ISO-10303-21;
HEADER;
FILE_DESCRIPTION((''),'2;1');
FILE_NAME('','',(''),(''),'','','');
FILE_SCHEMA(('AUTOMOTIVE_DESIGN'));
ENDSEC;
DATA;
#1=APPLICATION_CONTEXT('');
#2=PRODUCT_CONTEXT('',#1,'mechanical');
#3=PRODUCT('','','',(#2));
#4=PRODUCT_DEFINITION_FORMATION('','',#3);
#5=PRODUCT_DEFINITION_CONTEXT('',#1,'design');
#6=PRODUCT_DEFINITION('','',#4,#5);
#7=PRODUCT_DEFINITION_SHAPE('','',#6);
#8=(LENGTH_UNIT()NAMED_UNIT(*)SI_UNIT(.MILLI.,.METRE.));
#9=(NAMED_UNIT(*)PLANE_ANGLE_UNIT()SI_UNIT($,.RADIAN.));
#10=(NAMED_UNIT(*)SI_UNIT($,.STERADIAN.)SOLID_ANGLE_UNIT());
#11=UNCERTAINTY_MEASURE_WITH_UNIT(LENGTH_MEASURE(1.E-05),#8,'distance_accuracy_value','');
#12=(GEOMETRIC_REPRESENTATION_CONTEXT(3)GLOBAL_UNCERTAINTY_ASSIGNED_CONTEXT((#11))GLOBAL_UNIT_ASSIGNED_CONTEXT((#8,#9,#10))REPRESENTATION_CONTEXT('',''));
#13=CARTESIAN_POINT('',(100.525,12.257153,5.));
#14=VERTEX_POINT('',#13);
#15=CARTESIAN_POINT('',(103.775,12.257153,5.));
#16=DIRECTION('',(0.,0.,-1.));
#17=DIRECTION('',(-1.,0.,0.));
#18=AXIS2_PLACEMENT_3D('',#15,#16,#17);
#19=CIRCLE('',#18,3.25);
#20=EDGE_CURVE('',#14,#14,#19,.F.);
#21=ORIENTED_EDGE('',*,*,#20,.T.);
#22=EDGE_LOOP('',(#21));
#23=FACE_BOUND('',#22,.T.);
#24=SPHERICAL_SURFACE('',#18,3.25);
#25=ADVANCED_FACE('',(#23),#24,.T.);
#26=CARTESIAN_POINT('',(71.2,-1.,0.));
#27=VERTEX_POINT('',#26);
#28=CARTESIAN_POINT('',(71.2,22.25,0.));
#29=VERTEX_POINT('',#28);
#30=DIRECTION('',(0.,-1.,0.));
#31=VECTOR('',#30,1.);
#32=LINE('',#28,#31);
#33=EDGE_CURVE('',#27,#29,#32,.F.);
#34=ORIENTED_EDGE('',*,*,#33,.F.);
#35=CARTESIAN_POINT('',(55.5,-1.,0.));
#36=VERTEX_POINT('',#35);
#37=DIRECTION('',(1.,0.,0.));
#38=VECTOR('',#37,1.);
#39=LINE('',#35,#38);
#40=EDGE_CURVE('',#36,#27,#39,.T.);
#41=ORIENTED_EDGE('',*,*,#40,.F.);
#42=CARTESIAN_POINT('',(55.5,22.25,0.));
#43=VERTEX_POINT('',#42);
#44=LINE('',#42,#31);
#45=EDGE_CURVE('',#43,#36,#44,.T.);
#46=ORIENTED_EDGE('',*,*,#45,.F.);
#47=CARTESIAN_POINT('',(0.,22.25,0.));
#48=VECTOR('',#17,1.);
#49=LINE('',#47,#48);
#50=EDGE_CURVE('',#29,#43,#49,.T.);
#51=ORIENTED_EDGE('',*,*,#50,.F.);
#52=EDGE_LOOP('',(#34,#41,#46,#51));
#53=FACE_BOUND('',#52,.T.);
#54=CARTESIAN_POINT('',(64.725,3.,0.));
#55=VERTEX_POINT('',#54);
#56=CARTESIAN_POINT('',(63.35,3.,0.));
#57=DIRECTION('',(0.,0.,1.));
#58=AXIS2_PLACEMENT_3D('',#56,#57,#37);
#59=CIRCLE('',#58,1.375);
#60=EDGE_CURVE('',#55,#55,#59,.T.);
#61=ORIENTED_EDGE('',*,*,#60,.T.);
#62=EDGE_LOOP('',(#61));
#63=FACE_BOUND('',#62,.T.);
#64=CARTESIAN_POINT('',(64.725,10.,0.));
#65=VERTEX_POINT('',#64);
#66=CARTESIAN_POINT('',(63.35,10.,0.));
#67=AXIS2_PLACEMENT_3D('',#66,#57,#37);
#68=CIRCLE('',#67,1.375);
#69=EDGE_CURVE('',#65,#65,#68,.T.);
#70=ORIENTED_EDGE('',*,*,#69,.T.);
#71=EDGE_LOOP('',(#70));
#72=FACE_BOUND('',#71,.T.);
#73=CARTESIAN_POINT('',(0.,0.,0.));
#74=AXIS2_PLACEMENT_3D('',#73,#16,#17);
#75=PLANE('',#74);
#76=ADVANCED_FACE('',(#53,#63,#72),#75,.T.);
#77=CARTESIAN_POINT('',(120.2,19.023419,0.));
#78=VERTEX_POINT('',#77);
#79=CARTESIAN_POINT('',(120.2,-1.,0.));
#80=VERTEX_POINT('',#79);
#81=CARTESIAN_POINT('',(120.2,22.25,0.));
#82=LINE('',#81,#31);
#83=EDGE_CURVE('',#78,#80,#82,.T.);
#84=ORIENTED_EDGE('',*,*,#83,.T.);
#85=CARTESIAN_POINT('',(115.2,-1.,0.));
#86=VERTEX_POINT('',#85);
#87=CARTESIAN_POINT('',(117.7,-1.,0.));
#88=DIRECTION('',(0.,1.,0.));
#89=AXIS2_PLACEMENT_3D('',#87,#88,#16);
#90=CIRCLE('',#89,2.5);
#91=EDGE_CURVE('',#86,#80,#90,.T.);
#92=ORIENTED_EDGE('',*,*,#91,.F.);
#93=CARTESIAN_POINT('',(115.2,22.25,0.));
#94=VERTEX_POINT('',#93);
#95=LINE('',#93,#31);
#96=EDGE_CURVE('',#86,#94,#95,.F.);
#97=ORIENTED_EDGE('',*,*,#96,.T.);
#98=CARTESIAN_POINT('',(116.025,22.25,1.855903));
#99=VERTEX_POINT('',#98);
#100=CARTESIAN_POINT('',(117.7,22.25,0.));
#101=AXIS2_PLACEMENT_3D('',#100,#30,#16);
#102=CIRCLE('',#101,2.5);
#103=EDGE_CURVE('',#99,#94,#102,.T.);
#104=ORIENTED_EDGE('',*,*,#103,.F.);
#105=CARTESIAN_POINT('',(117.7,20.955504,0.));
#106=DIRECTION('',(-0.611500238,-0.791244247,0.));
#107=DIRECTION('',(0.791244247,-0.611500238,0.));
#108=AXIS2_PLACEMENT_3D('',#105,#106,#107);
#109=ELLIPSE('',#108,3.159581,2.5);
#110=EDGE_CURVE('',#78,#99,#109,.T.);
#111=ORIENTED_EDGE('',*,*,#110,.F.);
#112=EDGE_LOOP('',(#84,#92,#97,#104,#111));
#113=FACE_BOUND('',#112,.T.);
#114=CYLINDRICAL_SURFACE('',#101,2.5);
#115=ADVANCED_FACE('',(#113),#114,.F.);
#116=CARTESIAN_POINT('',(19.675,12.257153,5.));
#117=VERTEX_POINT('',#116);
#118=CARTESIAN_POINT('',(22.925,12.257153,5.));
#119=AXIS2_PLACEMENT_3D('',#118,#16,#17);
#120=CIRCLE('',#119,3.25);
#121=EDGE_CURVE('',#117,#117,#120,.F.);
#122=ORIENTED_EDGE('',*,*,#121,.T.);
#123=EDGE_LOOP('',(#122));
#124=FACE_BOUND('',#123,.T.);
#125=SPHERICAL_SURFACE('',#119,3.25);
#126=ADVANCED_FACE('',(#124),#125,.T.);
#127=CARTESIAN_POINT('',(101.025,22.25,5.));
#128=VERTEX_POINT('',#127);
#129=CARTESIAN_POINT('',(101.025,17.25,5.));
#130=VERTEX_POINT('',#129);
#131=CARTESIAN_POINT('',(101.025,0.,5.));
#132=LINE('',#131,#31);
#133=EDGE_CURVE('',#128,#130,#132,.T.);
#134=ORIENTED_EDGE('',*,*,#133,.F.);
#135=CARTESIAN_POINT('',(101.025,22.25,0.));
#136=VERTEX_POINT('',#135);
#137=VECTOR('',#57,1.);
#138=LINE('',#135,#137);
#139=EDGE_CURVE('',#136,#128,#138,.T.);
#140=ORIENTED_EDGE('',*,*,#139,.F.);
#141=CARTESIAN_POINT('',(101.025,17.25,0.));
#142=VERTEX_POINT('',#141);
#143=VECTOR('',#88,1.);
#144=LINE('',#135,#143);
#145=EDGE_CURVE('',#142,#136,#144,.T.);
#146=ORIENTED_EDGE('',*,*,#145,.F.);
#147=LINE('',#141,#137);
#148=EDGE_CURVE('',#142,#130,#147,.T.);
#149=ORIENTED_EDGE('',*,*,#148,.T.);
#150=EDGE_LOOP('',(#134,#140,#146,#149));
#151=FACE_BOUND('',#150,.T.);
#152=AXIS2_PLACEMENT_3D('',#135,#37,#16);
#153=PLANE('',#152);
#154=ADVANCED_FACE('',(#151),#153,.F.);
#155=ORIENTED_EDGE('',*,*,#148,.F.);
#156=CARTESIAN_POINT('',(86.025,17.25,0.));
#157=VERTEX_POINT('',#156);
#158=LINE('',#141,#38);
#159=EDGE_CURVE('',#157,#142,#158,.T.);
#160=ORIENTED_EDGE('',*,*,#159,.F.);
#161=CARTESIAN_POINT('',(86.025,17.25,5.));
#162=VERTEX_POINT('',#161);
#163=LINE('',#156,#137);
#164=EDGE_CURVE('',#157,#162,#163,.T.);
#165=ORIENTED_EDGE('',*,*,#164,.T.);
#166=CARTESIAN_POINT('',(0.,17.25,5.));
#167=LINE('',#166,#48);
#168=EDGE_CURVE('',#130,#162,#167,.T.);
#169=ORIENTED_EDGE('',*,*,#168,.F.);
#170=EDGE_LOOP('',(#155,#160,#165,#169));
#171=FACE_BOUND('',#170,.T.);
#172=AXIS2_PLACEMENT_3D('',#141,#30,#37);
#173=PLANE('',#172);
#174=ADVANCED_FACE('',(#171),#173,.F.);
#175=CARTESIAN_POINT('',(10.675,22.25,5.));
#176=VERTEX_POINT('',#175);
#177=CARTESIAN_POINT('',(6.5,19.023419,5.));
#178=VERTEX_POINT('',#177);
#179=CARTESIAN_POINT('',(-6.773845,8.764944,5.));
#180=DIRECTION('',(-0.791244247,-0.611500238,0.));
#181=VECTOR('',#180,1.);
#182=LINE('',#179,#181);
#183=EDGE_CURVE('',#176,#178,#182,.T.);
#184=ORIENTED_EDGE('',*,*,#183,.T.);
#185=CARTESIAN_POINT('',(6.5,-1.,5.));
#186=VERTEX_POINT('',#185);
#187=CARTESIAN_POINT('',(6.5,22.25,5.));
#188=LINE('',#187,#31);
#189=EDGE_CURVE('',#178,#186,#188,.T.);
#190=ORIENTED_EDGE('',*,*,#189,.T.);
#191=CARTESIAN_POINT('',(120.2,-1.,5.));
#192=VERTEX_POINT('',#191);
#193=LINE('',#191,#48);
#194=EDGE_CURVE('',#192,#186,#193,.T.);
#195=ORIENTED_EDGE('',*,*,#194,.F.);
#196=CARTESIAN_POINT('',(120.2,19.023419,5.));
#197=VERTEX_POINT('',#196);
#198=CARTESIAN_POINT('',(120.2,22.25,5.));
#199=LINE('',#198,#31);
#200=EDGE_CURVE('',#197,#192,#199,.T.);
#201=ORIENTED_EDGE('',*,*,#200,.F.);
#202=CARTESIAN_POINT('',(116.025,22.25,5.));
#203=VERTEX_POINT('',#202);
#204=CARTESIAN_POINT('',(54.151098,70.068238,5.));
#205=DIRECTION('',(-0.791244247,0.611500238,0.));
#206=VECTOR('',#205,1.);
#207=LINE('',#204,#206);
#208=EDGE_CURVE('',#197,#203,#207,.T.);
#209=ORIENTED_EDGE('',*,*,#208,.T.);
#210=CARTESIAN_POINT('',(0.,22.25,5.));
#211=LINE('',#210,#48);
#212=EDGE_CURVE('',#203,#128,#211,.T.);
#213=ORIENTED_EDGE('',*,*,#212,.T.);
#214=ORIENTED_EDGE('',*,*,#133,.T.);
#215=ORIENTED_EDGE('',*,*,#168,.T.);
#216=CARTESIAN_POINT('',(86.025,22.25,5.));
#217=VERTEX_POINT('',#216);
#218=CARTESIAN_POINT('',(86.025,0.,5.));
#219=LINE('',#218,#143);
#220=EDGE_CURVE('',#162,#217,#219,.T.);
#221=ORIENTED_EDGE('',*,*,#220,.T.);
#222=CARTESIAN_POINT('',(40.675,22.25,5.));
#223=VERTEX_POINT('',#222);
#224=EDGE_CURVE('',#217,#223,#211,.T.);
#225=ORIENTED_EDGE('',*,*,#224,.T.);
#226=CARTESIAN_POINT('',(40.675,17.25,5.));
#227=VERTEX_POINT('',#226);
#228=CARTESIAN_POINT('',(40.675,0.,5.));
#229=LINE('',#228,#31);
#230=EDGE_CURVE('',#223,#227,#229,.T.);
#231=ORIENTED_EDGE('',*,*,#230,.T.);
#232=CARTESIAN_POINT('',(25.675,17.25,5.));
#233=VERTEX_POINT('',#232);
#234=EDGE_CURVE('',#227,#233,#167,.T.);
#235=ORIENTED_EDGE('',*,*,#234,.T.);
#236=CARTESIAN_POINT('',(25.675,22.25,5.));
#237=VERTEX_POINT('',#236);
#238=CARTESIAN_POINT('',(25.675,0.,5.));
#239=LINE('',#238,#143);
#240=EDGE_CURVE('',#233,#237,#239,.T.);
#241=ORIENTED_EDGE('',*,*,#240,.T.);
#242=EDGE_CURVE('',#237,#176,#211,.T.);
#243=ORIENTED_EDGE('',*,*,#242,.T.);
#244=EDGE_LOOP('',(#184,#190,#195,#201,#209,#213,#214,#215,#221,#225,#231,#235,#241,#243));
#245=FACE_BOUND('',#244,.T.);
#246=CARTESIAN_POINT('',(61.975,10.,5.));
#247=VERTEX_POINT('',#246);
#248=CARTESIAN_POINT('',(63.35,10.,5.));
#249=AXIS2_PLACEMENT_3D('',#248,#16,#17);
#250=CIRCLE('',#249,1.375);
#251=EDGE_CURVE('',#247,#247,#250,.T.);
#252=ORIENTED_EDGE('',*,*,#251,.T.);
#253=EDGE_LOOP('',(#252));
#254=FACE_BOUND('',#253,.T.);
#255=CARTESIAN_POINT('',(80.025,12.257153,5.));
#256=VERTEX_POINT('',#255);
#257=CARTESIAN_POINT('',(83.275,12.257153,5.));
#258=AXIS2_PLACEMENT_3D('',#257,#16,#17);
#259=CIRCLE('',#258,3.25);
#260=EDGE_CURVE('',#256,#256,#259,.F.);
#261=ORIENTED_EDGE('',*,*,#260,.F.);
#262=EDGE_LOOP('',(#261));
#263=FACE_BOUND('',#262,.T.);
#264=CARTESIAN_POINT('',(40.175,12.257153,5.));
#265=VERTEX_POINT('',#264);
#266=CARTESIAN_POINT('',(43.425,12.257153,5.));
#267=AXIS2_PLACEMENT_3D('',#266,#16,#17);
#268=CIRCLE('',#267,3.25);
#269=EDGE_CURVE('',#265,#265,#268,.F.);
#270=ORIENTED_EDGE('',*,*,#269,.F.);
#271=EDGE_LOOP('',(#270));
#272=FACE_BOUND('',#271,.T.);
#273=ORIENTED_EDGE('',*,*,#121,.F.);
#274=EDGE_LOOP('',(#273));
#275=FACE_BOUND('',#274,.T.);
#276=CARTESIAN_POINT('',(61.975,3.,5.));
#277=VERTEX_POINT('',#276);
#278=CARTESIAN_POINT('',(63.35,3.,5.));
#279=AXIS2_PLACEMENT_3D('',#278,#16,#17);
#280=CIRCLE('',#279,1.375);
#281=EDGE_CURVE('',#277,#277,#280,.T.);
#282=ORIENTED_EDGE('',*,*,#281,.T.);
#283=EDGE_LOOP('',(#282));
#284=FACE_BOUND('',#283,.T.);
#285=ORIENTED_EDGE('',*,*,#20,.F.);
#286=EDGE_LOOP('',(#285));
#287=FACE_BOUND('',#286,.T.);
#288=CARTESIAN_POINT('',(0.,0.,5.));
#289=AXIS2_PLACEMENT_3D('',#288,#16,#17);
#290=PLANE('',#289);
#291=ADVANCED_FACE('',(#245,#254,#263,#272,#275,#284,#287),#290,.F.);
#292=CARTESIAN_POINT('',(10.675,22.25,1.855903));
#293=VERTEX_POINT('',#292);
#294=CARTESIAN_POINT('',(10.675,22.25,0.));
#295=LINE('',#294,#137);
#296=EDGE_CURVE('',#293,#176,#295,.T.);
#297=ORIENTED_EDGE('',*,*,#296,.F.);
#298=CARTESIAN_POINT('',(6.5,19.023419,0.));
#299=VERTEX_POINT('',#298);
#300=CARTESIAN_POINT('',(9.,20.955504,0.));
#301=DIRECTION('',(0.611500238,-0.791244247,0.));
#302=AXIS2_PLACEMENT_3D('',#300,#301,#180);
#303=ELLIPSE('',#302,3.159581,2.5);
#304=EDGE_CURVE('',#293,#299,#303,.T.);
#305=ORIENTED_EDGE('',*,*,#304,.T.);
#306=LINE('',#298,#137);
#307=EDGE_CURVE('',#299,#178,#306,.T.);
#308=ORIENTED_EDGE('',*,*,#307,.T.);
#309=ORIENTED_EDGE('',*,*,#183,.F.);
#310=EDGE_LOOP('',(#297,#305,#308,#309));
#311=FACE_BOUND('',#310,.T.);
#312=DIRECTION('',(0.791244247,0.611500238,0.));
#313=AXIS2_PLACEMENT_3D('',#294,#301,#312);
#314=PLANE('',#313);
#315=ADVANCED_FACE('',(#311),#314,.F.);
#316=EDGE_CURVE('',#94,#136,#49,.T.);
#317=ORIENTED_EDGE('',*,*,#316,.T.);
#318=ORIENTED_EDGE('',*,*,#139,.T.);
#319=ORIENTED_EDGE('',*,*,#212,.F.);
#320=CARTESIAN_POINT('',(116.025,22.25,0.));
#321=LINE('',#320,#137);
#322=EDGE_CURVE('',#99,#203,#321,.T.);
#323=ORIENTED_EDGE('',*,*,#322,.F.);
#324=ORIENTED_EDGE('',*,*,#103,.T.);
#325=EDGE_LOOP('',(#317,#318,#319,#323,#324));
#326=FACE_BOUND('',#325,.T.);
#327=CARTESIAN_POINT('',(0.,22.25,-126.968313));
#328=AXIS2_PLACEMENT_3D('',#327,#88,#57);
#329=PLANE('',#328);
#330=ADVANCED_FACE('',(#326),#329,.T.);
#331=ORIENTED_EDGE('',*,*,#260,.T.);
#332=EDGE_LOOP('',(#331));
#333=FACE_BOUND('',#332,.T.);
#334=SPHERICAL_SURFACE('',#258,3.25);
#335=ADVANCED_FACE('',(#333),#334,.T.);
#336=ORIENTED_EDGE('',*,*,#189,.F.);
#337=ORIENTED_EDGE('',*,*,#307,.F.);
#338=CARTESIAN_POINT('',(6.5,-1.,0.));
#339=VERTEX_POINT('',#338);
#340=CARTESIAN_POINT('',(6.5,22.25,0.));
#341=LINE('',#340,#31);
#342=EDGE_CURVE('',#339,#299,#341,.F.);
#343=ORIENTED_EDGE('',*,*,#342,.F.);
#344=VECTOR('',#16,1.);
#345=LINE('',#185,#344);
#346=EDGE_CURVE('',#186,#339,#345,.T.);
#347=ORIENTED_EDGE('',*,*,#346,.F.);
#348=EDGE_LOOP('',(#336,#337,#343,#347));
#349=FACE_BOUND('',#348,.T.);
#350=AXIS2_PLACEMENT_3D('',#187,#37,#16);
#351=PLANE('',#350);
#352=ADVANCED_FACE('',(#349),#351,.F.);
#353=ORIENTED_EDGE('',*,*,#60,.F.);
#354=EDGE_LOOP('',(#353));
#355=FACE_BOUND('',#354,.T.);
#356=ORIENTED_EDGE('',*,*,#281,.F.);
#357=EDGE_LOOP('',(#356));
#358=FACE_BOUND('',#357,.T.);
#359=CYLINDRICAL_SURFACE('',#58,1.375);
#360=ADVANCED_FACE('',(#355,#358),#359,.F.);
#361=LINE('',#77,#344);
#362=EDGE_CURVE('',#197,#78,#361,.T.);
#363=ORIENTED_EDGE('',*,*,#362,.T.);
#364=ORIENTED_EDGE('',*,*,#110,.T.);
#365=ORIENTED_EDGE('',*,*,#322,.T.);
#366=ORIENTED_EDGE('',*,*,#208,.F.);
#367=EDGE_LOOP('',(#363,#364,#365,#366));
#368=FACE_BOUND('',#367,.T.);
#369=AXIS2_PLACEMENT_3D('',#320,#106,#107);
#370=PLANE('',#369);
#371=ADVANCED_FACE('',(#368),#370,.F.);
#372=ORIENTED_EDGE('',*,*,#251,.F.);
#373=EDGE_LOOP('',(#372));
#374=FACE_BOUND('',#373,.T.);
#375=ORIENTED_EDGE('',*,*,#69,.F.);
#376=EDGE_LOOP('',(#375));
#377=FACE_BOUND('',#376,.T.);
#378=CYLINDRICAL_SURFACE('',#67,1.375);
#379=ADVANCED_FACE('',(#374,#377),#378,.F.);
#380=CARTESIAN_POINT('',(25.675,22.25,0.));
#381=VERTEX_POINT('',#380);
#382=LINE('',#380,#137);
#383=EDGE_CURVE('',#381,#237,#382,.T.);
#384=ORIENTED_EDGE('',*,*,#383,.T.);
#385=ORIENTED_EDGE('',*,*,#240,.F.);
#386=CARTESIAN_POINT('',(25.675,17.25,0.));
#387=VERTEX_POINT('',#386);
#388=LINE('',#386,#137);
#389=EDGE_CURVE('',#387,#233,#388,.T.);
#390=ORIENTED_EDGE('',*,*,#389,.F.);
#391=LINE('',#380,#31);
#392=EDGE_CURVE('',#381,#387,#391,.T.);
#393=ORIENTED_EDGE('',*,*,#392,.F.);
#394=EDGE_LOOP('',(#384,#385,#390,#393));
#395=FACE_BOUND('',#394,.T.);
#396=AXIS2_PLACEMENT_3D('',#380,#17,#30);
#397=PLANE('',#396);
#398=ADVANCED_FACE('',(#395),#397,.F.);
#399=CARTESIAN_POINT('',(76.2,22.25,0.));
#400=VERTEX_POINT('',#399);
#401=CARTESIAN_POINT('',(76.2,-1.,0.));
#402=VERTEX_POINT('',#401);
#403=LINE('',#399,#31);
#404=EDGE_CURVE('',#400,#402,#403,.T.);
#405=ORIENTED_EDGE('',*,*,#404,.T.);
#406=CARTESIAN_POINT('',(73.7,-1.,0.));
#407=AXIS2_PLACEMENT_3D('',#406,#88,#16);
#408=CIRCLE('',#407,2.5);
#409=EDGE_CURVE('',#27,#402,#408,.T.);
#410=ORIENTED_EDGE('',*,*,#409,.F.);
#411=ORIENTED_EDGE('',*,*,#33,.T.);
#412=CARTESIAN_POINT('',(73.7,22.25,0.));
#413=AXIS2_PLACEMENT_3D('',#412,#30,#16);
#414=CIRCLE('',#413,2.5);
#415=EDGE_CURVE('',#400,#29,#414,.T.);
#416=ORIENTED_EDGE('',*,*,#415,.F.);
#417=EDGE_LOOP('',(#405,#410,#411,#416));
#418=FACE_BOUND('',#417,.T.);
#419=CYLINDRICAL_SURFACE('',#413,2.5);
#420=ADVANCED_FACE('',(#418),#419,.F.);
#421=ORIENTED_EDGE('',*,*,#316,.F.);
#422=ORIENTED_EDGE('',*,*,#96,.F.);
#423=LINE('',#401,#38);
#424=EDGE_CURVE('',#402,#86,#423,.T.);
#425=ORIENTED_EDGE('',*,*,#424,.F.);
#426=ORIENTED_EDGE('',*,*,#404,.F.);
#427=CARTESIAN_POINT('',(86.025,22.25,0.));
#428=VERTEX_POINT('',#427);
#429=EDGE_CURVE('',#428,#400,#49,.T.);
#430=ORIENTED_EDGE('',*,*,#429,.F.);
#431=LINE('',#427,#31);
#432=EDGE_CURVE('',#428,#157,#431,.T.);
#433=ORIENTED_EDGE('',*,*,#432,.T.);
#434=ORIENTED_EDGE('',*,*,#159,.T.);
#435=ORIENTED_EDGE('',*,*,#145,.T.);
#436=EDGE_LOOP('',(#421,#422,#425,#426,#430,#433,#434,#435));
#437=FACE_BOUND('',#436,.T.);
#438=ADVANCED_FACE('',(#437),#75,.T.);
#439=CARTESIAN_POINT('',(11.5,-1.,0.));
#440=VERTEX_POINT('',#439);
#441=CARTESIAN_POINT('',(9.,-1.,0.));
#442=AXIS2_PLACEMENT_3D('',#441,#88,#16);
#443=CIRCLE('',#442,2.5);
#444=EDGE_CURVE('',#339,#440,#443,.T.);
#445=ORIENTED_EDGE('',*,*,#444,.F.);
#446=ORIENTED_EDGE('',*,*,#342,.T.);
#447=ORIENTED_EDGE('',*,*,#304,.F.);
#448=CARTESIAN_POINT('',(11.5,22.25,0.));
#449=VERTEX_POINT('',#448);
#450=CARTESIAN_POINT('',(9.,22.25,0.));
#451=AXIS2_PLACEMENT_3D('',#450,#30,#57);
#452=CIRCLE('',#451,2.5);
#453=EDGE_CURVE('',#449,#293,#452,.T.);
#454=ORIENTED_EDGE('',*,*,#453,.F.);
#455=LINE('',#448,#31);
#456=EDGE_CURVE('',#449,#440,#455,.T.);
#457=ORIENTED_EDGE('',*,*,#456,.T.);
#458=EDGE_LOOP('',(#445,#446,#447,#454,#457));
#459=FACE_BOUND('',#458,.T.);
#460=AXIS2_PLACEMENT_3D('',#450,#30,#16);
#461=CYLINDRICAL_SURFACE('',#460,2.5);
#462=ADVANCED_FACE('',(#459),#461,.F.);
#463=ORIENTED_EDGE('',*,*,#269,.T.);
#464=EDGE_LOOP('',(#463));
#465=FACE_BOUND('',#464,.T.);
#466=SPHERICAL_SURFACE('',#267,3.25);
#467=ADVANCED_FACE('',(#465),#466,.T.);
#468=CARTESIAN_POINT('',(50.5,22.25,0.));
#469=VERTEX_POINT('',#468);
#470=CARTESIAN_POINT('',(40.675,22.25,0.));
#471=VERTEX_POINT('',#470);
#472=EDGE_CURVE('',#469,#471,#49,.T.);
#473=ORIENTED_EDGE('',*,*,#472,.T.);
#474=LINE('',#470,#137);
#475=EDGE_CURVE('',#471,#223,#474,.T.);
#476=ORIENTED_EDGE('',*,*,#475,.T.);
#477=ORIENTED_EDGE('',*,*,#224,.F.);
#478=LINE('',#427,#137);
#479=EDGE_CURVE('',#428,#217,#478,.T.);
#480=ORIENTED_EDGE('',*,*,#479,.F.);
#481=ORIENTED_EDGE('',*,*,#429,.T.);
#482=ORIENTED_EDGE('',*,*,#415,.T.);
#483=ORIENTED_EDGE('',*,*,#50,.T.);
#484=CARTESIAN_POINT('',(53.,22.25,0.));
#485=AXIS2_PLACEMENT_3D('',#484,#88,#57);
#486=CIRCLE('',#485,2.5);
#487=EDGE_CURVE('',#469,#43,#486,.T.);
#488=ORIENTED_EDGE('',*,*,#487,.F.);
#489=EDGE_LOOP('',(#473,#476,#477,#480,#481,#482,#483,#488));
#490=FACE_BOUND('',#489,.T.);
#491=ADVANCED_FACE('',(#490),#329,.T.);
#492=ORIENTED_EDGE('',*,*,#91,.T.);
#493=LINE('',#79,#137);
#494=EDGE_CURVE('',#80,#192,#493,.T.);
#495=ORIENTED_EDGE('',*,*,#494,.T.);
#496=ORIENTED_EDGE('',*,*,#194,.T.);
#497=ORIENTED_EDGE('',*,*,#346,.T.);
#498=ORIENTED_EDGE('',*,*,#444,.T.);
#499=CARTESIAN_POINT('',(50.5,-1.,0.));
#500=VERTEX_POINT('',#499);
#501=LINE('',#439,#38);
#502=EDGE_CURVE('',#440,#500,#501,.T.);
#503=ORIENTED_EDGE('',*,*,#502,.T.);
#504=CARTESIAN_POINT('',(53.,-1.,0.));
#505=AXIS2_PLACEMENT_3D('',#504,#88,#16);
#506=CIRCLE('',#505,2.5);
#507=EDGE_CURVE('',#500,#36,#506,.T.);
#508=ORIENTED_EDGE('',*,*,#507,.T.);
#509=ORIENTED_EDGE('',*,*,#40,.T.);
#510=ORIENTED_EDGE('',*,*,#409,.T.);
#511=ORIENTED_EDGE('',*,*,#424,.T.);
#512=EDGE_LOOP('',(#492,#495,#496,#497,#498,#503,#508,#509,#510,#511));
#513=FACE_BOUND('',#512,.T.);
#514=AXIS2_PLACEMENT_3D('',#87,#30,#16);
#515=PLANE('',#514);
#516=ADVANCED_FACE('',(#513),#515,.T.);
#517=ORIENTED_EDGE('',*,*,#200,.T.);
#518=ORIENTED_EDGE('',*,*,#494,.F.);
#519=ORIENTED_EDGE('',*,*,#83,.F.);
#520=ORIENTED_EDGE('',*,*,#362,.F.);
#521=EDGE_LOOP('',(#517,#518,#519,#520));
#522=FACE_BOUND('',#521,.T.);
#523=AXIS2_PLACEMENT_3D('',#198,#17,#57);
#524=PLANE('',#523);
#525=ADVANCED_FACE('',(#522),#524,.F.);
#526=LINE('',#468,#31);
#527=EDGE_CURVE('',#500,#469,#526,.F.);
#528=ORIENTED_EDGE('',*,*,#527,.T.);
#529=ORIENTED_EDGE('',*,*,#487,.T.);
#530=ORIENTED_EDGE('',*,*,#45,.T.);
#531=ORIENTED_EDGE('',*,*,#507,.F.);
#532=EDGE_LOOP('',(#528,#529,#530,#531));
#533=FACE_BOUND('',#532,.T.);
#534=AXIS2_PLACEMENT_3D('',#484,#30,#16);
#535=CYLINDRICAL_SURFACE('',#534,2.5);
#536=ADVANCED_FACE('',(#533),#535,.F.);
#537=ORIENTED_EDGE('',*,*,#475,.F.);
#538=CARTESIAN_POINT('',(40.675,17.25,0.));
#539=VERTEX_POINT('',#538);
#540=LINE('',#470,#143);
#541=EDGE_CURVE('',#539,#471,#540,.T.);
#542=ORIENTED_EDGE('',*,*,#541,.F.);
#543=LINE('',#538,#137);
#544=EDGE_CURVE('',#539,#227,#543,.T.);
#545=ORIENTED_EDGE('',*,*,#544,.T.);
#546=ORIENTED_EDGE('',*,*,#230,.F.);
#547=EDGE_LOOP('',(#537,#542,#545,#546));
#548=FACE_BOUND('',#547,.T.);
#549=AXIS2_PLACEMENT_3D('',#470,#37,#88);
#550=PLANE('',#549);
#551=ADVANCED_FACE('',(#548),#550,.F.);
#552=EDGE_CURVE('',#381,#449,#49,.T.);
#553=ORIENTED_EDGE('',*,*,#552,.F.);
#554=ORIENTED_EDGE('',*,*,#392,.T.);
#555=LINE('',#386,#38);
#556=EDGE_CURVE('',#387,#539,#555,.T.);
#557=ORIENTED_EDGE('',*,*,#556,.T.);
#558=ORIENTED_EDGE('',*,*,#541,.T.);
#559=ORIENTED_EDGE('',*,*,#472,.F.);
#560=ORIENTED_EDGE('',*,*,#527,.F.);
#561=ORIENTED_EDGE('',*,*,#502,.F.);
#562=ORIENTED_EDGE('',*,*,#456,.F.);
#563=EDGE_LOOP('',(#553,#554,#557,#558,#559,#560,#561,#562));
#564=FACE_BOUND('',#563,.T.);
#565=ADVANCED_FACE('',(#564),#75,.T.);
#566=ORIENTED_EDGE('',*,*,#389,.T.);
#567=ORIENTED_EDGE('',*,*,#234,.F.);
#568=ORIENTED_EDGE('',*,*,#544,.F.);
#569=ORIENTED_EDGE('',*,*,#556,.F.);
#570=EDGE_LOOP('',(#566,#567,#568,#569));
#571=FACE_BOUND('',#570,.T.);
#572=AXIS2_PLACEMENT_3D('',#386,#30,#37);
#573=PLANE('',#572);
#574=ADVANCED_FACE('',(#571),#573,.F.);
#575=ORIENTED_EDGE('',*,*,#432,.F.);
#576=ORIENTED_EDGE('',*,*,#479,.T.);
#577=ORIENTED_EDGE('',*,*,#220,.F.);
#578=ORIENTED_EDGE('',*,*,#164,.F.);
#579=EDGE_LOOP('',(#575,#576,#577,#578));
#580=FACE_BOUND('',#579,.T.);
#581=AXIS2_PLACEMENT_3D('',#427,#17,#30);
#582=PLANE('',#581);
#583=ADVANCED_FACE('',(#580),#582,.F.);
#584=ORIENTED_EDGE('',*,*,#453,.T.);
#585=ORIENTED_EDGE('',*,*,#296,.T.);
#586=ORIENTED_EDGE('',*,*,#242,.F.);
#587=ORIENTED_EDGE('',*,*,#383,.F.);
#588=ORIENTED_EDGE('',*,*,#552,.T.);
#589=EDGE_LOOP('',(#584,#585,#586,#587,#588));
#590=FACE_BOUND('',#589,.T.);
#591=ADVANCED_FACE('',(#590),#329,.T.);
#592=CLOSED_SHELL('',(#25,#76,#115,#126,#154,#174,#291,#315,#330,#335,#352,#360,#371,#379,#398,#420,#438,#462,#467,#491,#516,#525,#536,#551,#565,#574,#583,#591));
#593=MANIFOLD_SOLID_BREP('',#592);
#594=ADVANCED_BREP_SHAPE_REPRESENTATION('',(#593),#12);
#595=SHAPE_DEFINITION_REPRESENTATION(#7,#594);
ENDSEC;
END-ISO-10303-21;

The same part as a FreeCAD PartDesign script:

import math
import FreeCAD as App
import Part
import Sketcher

V = App.Vector

doc = App.newDocument("Part")
params = doc.addObject("Spreadsheet::Sheet", "Params")
for row, (alias, value) in enumerate([
    ("sketch1_height", "14 mm"),
    ("sketch1_width", "126.7 mm"),
    ("pad1_length", "5 mm"),
    ("sketch2_diameter", "2.75 mm"),
    ("sketch3_width", "126.7 mm"),
    ("sketch3_height", "8.25 mm"),
    ("pad2_length", "5 mm"),
    ("sketch4_radius", "3.25 mm"),
    ("revolution_angle", "180 deg"),
    ("sketch5_radius", "3.25 mm"),
    ("revolution2_angle", "180 deg"),
    ("sketch6_radius", "3.25 mm"),
    ("revolution3_angle", "180 deg"),
    ("sketch7_radius", "3.25 mm"),
    ("revolution4_angle", "180 deg"),
    ("sketch8_width", "15 mm"),
    ("sketch8_height", "5 mm"),
    ("sketch9_height", "8.25 mm"),
    ("sketch10_diameter", "5 mm"),
    ("sketch11_diameter", "5 mm"),
    ("sketch12_height", "5 mm"),
    ("sketch12_width", "6.5 mm"),
    ("sketch13_radius", "2.5 mm"),
    ("sketch13_width", "39 mm"),
    ("sketch13_height", "5 mm"),
    ("sketch13_width2", "113.7 mm"),
    ("pad3_length", "1 mm"),
], start=1):
    params.set(f"A{row}", alias)
    params.set(f"B{row}", "=" + value)
    params.setAlias(f"B{row}", alias)

body = doc.addObject("PartDesign::Body", "Body")

sketch1 = doc.addObject("Sketcher::SketchObject", "Sketch")
body.addObject(sketch1)
sketch1.AttachmentSupport = (doc.XY_Plane, [""])
sketch1.MapMode = "FlatFace"
sketch1.addGeometry([
    Part.LineSegment(V(0, 14, 0), V(0, 0, 0)),
    Part.LineSegment(V(0, 0, 0), V(127, 0, 0)),
    Part.LineSegment(V(127, 0, 0), V(127, 14, 0)),
    Part.LineSegment(V(127, 14, 0), V(0, 14, 0)),
], False)
sketch1.addConstraint([
    Sketcher.Constraint("Coincident", 0, 2, 1, 1),
    Sketcher.Constraint("Coincident", 1, 2, 2, 1),
    Sketcher.Constraint("Coincident", 2, 2, 3, 1),
    Sketcher.Constraint("Coincident", 3, 2, 0, 1),
    Sketcher.Constraint("Vertical", 0),
    Sketcher.Constraint("Horizontal", 1),
    Sketcher.Constraint("Vertical", 2),
    Sketcher.Constraint("Horizontal", 3),
    Sketcher.Constraint("Coincident", 0, 2, -1, 1),
    Sketcher.Constraint("DistanceY", 0, 2, 0, 1, 14.0),
    Sketcher.Constraint("DistanceX", 1, 1, 1, 2, 126.7),
])
sketch1.setExpression("Constraints[9]", "Params.sketch1_height")
sketch1.setExpression("Constraints[10]", "Params.sketch1_width")
pad1 = doc.addObject("PartDesign::Pad", "Pad")
body.addObject(pad1)
pad1.Profile = sketch1
pad1.setExpression("Length", "Params.pad1_length")

sketch2 = doc.addObject("Sketcher::SketchObject", "Sketch001")
body.addObject(sketch2)
sketch2.AttachmentSupport = (doc.XY_Plane, [""])
sketch2.MapMode = "FlatFace"
sketch2.AttachmentOffset = App.Placement(V(0, 0, 5), App.Rotation())
sketch2.addGeometry([
    Part.Circle(V(63.4, 10, 0), V(0, 0, 1), 1.4),
    Part.Circle(V(63.4, 3, 0), V(0, 0, 1), 1.4),
    Part.Circle(V(123.7, 10, 0), V(0, 0, 1), 1.4),
    Part.Circle(V(123.7, 3, 0), V(0, 0, 1), 1.4),
    Part.Circle(V(3, 3, 0), V(0, 0, 1), 1.4),
    Part.Circle(V(3, 10, 0), V(0, 0, 1), 1.4),
], False)
sketch2.addConstraint([
    Sketcher.Constraint("Equal", 0, 1),
    Sketcher.Constraint("Equal", 1, 2),
    Sketcher.Constraint("Equal", 2, 3),
    Sketcher.Constraint("Equal", 3, 4),
    Sketcher.Constraint("Equal", 4, 5),
    Sketcher.Constraint("Horizontal", 0, 3, 2, 3),
    Sketcher.Constraint("Horizontal", 1, 3, 3, 3),
    Sketcher.Constraint("Horizontal", 3, 3, 4, 3),
    Sketcher.Constraint("Horizontal", 2, 3, 5, 3),
    Sketcher.Constraint("Vertical", 0, 3, 1, 3),
    Sketcher.Constraint("Vertical", 2, 3, 3, 3),
    Sketcher.Constraint("Vertical", 4, 3, 5, 3),
    Sketcher.Constraint("Diameter", 0, 2.75),
    Sketcher.Constraint("DistanceY", -1, 1, 0, 3, 10.0),
    Sketcher.Constraint("DistanceY", -1, 1, 1, 3, 3.0),
    Sketcher.Constraint("DistanceX", -1, 1, 4, 3, 3.0),
    Sketcher.Constraint("DistanceX", -1, 1, 2, 3, 123.7),
    Sketcher.Constraint("DistanceX", -1, 1, 0, 3, 63.35),
])
sketch2.setExpression("Constraints[12]", "Params.sketch2_diameter")
pocket1 = doc.addObject("PartDesign::Pocket", "Pocket")
body.addObject(pocket1)
pocket1.Profile = sketch2
pocket1.Type = "ThroughAll"
pocket1.Midplane = True

sketch3 = doc.addObject("Sketcher::SketchObject", "Sketch002")
body.addObject(sketch3)
sketch3.AttachmentSupport = (doc.XY_Plane, [""])
sketch3.MapMode = "FlatFace"
sketch3.AttachmentOffset = App.Placement(V(0, 0, 5), App.Rotation())
sketch3.addGeometry([
    Part.LineSegment(V(0, 22, 0), V(0, 14, 0)),
    Part.LineSegment(V(0, 14, 0), V(127, 14, 0)),
    Part.LineSegment(V(127, 14, 0), V(127, 22, 0)),
    Part.LineSegment(V(127, 22, 0), V(0, 22, 0)),
], False)
sketch3.addConstraint([
    Sketcher.Constraint("Coincident", 0, 2, 1, 1),
    Sketcher.Constraint("Coincident", 1, 2, 2, 1),
    Sketcher.Constraint("Coincident", 2, 2, 3, 1),
    Sketcher.Constraint("Coincident", 3, 2, 0, 1),
    Sketcher.Constraint("Vertical", 0),
    Sketcher.Constraint("Horizontal", 1),
    Sketcher.Constraint("Vertical", 2),
    Sketcher.Constraint("Horizontal", 3),
    Sketcher.Constraint("PointOnObject", 0, 2, -2),
    Sketcher.Constraint("DistanceX", 1, 1, 1, 2, 126.7),
    Sketcher.Constraint("DistanceY", -1, 1, 0, 2, 14.0),
    Sketcher.Constraint("DistanceY", 0, 2, 0, 1, 8.25),
])
sketch3.setExpression("Constraints[9]", "Params.sketch3_width")
sketch3.setExpression("Constraints[11]", "Params.sketch3_height")
pad2 = doc.addObject("PartDesign::Pad", "Pad001")
body.addObject(pad2)
pad2.Profile = sketch3
pad2.setExpression("Length", "Params.pad2_length")
pad2.Reversed = True

sketch4 = doc.addObject("Sketcher::SketchObject", "Sketch003")
body.addObject(sketch4)
sketch4.AttachmentSupport = (doc.XY_Plane, [""])
sketch4.MapMode = "FlatFace"
sketch4.AttachmentOffset = App.Placement(V(0, 0, 5), App.Rotation())
sketch4.addGeometry([
    Part.LineSegment(V(43.4, 9, 0), V(43.4, 15.5, 0)),
    Part.ArcOfCircle(Part.Circle(V(43.4, 12.3, 0), V(0, 0, 1), 3.2), math.radians(90), math.radians(270)),
], False)
sketch4.addGeometry(Part.LineSegment(V(43.4, 9, 0), V(43.4, 15.5, 0)), True)
sketch4.addConstraint([
    Sketcher.Constraint("Coincident", 0, 1, 1, 2),
    Sketcher.Constraint("Coincident", 1, 1, 0, 2),
    Sketcher.Constraint("Vertical", 0),
    Sketcher.Constraint("Vertical", 2),
    Sketcher.Constraint("Coincident", 2, 1, 0, 1),
    Sketcher.Constraint("Vertical", 1, 3, 0, 1),
    Sketcher.Constraint("Equal", 0, 2),
    Sketcher.Constraint("Radius", 1, 3.25),
    Sketcher.Constraint("DistanceX", -1, 1, 1, 3, 43.425),
    Sketcher.Constraint("DistanceY", -1, 1, 1, 3, 12.257153),
])
sketch4.setExpression("Constraints[7]", "Params.sketch4_radius")
revolution = doc.addObject("PartDesign::Revolution", "Revolution")
body.addObject(revolution)
revolution.Profile = sketch4
revolution.ReferenceAxis = (sketch4, ["Axis0"])
revolution.setExpression("Angle", "Params.revolution_angle")

sketch5 = doc.addObject("Sketcher::SketchObject", "Sketch004")
body.addObject(sketch5)
sketch5.AttachmentSupport = (doc.XY_Plane, [""])
sketch5.MapMode = "FlatFace"
sketch5.AttachmentOffset = App.Placement(V(0, 0, 5), App.Rotation())
sketch5.addGeometry([
    Part.LineSegment(V(22.9, 15.5, 0), V(22.9, 9, 0)),
    Part.ArcOfCircle(Part.Circle(V(22.9, 12.3, 0), V(0, 0, 1), 3.2), math.radians(-90), math.radians(90)),
], False)
sketch5.addGeometry(Part.LineSegment(V(22.9, 15.5, 0), V(22.9, 9, 0)), True)
sketch5.addConstraint([
    Sketcher.Constraint("Coincident", 0, 1, 1, 2),
    Sketcher.Constraint("Coincident", 1, 1, 0, 2),
    Sketcher.Constraint("Vertical", 0),
    Sketcher.Constraint("Vertical", 2),
    Sketcher.Constraint("Coincident", 2, 1, 0, 1),
    Sketcher.Constraint("Vertical", 1, 3, 0, 1),
    Sketcher.Constraint("Equal", 0, 2),
    Sketcher.Constraint("Radius", 1, 3.25),
    Sketcher.Constraint("DistanceX", -1, 1, 1, 3, 22.925),
    Sketcher.Constraint("DistanceY", -1, 1, 1, 3, 12.257153),
])
sketch5.setExpression("Constraints[7]", "Params.sketch5_radius")
revolution2 = doc.addObject("PartDesign::Revolution", "Revolution001")
body.addObject(revolution2)
revolution2.Profile = sketch5
revolution2.ReferenceAxis = (sketch5, ["Axis0"])
revolution2.setExpression("Angle", "Params.revolution2_angle")

sketch6 = doc.addObject("Sketcher::SketchObject", "Sketch005")
body.addObject(sketch6)
sketch6.AttachmentSupport = (doc.XY_Plane, [""])
sketch6.MapMode = "FlatFace"
sketch6.AttachmentOffset = App.Placement(V(0, 0, 5), App.Rotation())
sketch6.addGeometry([
    Part.LineSegment(V(83.3, 15.5, 0), V(83.3, 9, 0)),
    Part.ArcOfCircle(Part.Circle(V(83.3, 12.3, 0), V(0, 0, 1), 3.2), math.radians(-90), math.radians(90)),
], False)
sketch6.addGeometry(Part.LineSegment(V(83.3, 15.5, 0), V(83.3, 9, 0)), True)
sketch6.addConstraint([
    Sketcher.Constraint("Coincident", 0, 1, 1, 2),
    Sketcher.Constraint("Coincident", 1, 1, 0, 2),
    Sketcher.Constraint("Vertical", 0),
    Sketcher.Constraint("Vertical", 2),
    Sketcher.Constraint("Coincident", 2, 1, 0, 1),
    Sketcher.Constraint("Vertical", 1, 3, 0, 1),
    Sketcher.Constraint("Equal", 0, 2),
    Sketcher.Constraint("Radius", 1, 3.25),
    Sketcher.Constraint("DistanceX", -1, 1, 1, 3, 83.275),
    Sketcher.Constraint("DistanceY", -1, 1, 1, 3, 12.257153),
])
sketch6.setExpression("Constraints[7]", "Params.sketch6_radius")
revolution3 = doc.addObject("PartDesign::Revolution", "Revolution002")
body.addObject(revolution3)
revolution3.Profile = sketch6
revolution3.ReferenceAxis = (sketch6, ["Axis0"])
revolution3.setExpression("Angle", "Params.revolution3_angle")

sketch7 = doc.addObject("Sketcher::SketchObject", "Sketch006")
body.addObject(sketch7)
sketch7.AttachmentSupport = (doc.XY_Plane, [""])
sketch7.MapMode = "FlatFace"
sketch7.AttachmentOffset = App.Placement(V(0, 0, 5), App.Rotation())
sketch7.addGeometry([
    Part.LineSegment(V(103.8, 9, 0), V(103.8, 15.5, 0)),
    Part.ArcOfCircle(Part.Circle(V(103.8, 12.3, 0), V(0, 0, 1), 3.2), math.radians(90), math.radians(270)),
], False)
sketch7.addGeometry(Part.LineSegment(V(103.8, 9, 0), V(103.8, 15.5, 0)), True)
sketch7.addConstraint([
    Sketcher.Constraint("Coincident", 0, 1, 1, 2),
    Sketcher.Constraint("Coincident", 1, 1, 0, 2),
    Sketcher.Constraint("Vertical", 0),
    Sketcher.Constraint("Vertical", 2),
    Sketcher.Constraint("Coincident", 2, 1, 0, 1),
    Sketcher.Constraint("Vertical", 1, 3, 0, 1),
    Sketcher.Constraint("Equal", 0, 2),
    Sketcher.Constraint("Radius", 1, 3.25),
    Sketcher.Constraint("DistanceX", -1, 1, 1, 3, 103.775),
    Sketcher.Constraint("DistanceY", -1, 1, 1, 3, 12.257153),
])
sketch7.setExpression("Constraints[7]", "Params.sketch7_radius")
revolution4 = doc.addObject("PartDesign::Revolution", "Revolution003")
body.addObject(revolution4)
revolution4.Profile = sketch7
revolution4.ReferenceAxis = (sketch7, ["Axis0"])
revolution4.setExpression("Angle", "Params.revolution4_angle")

sketch8 = doc.addObject("Sketcher::SketchObject", "Sketch007")
body.addObject(sketch8)
sketch8.AttachmentSupport = (doc.XY_Plane, [""])
sketch8.MapMode = "FlatFace"
sketch8.AttachmentOffset = App.Placement(V(0, 0, 5), App.Rotation())
sketch8.addGeometry([
    Part.LineSegment(V(26, 22, 0), V(26, 17, 0)),
    Part.LineSegment(V(26, 17, 0), V(41, 17, 0)),
    Part.LineSegment(V(41, 17, 0), V(41, 22, 0)),
    Part.LineSegment(V(41, 22, 0), V(26, 22, 0)),
    Part.LineSegment(V(86, 22, 0), V(86, 17, 0)),
    Part.LineSegment(V(86, 17, 0), V(101, 17, 0)),
    Part.LineSegment(V(101, 17, 0), V(101, 22, 0)),
    Part.LineSegment(V(101, 22, 0), V(86, 22, 0)),
], False)
sketch8.addConstraint([
    Sketcher.Constraint("Coincident", 0, 2, 1, 1),
    Sketcher.Constraint("Coincident", 1, 2, 2, 1),
    Sketcher.Constraint("Coincident", 2, 2, 3, 1),
    Sketcher.Constraint("Coincident", 3, 2, 0, 1),
    Sketcher.Constraint("Coincident", 4, 2, 5, 1),
    Sketcher.Constraint("Coincident", 5, 2, 6, 1),
    Sketcher.Constraint("Coincident", 6, 2, 7, 1),
    Sketcher.Constraint("Coincident", 7, 2, 4, 1),
    Sketcher.Constraint("Vertical", 0),
    Sketcher.Constraint("Horizontal", 1),
    Sketcher.Constraint("Vertical", 2),
    Sketcher.Constraint("Horizontal", 3),
    Sketcher.Constraint("Vertical", 4),
    Sketcher.Constraint("Horizontal", 5),
    Sketcher.Constraint("Vertical", 6),
    Sketcher.Constraint("Horizontal", 7),
    Sketcher.Constraint("Horizontal", 1, 2, 4, 2),
    Sketcher.Constraint("Horizontal", 3, 2, 6, 2),
    Sketcher.Constraint("Equal", 3, 5),
    Sketcher.Constraint("DistanceX", 1, 1, 1, 2, 15.0),
    Sketcher.Constraint("DistanceY", 0, 2, 0, 1, 5.0),
    Sketcher.Constraint("DistanceY", -1, 1, 0, 2, 17.25),
    Sketcher.Constraint("DistanceX", 1, 2, 4, 2, 45.35),
    Sketcher.Constraint("DistanceX", -1, 1, 0, 2, 25.675),
])
sketch8.setExpression("Constraints[19]", "Params.sketch8_width")
sketch8.setExpression("Constraints[20]", "Params.sketch8_height")
pocket2 = doc.addObject("PartDesign::Pocket", "Pocket001")
body.addObject(pocket2)
pocket2.Profile = sketch8
pocket2.Type = "ThroughAll"
pocket2.Midplane = True

sketch9 = doc.addObject("Sketcher::SketchObject", "Sketch008")
body.addObject(sketch9)
sketch9.AttachmentSupport = (doc.XY_Plane, [""])
sketch9.MapMode = "FlatFace"
sketch9.AttachmentOffset = App.Placement(V(0, 0, 5), App.Rotation())
sketch9.addGeometry([
    Part.LineSegment(V(116, 22, 0), V(127, 14, 0)),
    Part.LineSegment(V(127, 14, 0), V(127, 22, 0)),
    Part.LineSegment(V(127, 22, 0), V(116, 22, 0)),
    Part.LineSegment(V(0, 22, 0), V(0, 14, 0)),
    Part.LineSegment(V(0, 14, 0), V(11, 22, 0)),
    Part.LineSegment(V(11, 22, 0), V(0, 22, 0)),
], False)
sketch9.addConstraint([
    Sketcher.Constraint("Coincident", 0, 2, 1, 1),
    Sketcher.Constraint("Coincident", 1, 2, 2, 1),
    Sketcher.Constraint("Coincident", 2, 2, 0, 1),
    Sketcher.Constraint("Coincident", 3, 2, 4, 1),
    Sketcher.Constraint("Coincident", 4, 2, 5, 1),
    Sketcher.Constraint("Coincident", 5, 2, 3, 1),
    Sketcher.Constraint("Vertical", 1),
    Sketcher.Constraint("Horizontal", 2),
    Sketcher.Constraint("Vertical", 3),
    Sketcher.Constraint("Horizontal", 5),
    Sketcher.Constraint("PointOnObject", 3, 2, -2),
    Sketcher.Constraint("Horizontal", 0, 2, 3, 2),
    Sketcher.Constraint("Horizontal", 2, 2, 4, 2),
    Sketcher.Constraint("Equal", 2, 5),
    Sketcher.Constraint("DistanceY", -1, 1, 0, 2, 14.0),
    Sketcher.Constraint("DistanceY", 1, 1, 1, 2, 8.25),
    Sketcher.Constraint("DistanceX", -1, 1, 0, 2, 126.7),
    Sketcher.Constraint("DistanceX", 2, 2, 2, 1, 10.675),
])
sketch9.setExpression("Constraints[15]", "Params.sketch9_height")
pocket3 = doc.addObject("PartDesign::Pocket", "Pocket002")
body.addObject(pocket3)
pocket3.Profile = sketch9
pocket3.Type = "ThroughAll"
pocket3.Midplane = True

sketch10 = doc.addObject("Sketcher::SketchObject", "Sketch009")
body.addObject(sketch10)
sketch10.AttachmentSupport = (doc.XZ_Plane, [""])
sketch10.MapMode = "FlatFace"
sketch10.addGeometry([
    Part.Circle(V(127, 1.2, 0), V(0, 0, 1), 2.5),
    Part.Circle(V(-0.2, 1.2, 0), V(0, 0, 1), 2.5),
], False)
sketch10.addConstraint([
    Sketcher.Constraint("Equal", 0, 1),
    Sketcher.Constraint("Horizontal", 0, 3, 1, 3),
    Sketcher.Constraint("Diameter", 0, 5.0),
    Sketcher.Constraint("DistanceX", 1, 3, 0, 3, 127.2),
    Sketcher.Constraint("DistanceX", -1, 1, 0, 3, 126.95),
    Sketcher.Constraint("DistanceY", -1, 1, 0, 3, 1.155771),
])
sketch10.setExpression("Constraints[2]", "Params.sketch10_diameter")
pocket4 = doc.addObject("PartDesign::Pocket", "Pocket003")
body.addObject(pocket4)
pocket4.Profile = sketch10
pocket4.Type = "ThroughAll"

sketch11 = doc.addObject("Sketcher::SketchObject", "Sketch010")
body.addObject(sketch11)
sketch11.AttachmentSupport = (doc.XZ_Plane, [""])
sketch11.MapMode = "FlatFace"
sketch11.addGeometry([
    Part.Circle(V(117.7, 0, 0), V(0, 0, 1), 2.5),
    Part.Circle(V(73.7, 0, 0), V(0, 0, 1), 2.5),
    Part.Circle(V(53, 0, 0), V(0, 0, 1), 2.5),
    Part.Circle(V(9, 0, 0), V(0, 0, 1), 2.5),
], False)
sketch11.addConstraint([
    Sketcher.Constraint("Equal", 0, 1),
    Sketcher.Constraint("Equal", 1, 2),
    Sketcher.Constraint("Equal", 2, 3),
    Sketcher.Constraint("PointOnObject", 0, 3, -1),
    Sketcher.Constraint("PointOnObject", 1, 3, -1),
    Sketcher.Constraint("PointOnObject", 2, 3, -1),
    Sketcher.Constraint("PointOnObject", 3, 3, -1),
    Sketcher.Constraint("Diameter", 0, 5.0),
    Sketcher.Constraint("DistanceX", -1, 1, 2, 3, 53.0),
    Sketcher.Constraint("DistanceX", -1, 1, 3, 3, 9.0),
    Sketcher.Constraint("DistanceX", 1, 3, 0, 3, 44.0),
    Sketcher.Constraint("DistanceX", -1, 1, 0, 3, 117.7),
])
sketch11.setExpression("Constraints[7]", "Params.sketch11_diameter")
pocket5 = doc.addObject("PartDesign::Pocket", "Pocket004")
body.addObject(pocket5)
pocket5.Profile = sketch11
pocket5.Type = "ThroughAll"

sketch12 = doc.addObject("Sketcher::SketchObject", "Sketch011")
body.addObject(sketch12)
sketch12.AttachmentSupport = (doc.XZ_Plane, [""])
sketch12.MapMode = "FlatFace"
sketch12.addGeometry([
    Part.LineSegment(V(120, 5, 0), V(120, 0, 0)),
    Part.LineSegment(V(120, 0, 0), V(127, 0, 0)),
    Part.LineSegment(V(127, 0, 0), V(127, 5, 0)),
    Part.LineSegment(V(127, 5, 0), V(120, 5, 0)),
    Part.LineSegment(V(0, 5, 0), V(0, 0, 0)),
    Part.LineSegment(V(0, 0, 0), V(6, 0, 0)),
    Part.LineSegment(V(6, 0, 0), V(6, 5, 0)),
    Part.LineSegment(V(6, 5, 0), V(0, 5, 0)),
], False)
sketch12.addConstraint([
    Sketcher.Constraint("Coincident", 0, 2, 1, 1),
    Sketcher.Constraint("Coincident", 1, 2, 2, 1),
    Sketcher.Constraint("Coincident", 2, 2, 3, 1),
    Sketcher.Constraint("Coincident", 3, 2, 0, 1),
    Sketcher.Constraint("Coincident", 4, 2, 5, 1),
    Sketcher.Constraint("Coincident", 5, 2, 6, 1),
    Sketcher.Constraint("Coincident", 6, 2, 7, 1),
    Sketcher.Constraint("Coincident", 7, 2, 4, 1),
    Sketcher.Constraint("Vertical", 0),
    Sketcher.Constraint("Horizontal", 1),
    Sketcher.Constraint("Vertical", 2),
    Sketcher.Constraint("Horizontal", 3),
    Sketcher.Constraint("Vertical", 4),
    Sketcher.Constraint("Horizontal", 5),
    Sketcher.Constraint("Vertical", 6),
    Sketcher.Constraint("Horizontal", 7),
    Sketcher.Constraint("Coincident", 4, 2, -1, 1),
    Sketcher.Constraint("PointOnObject", 0, 2, -1),
    Sketcher.Constraint("Horizontal", 3, 2, 6, 2),
    Sketcher.Constraint("Equal", 3, 5),
    Sketcher.Constraint("DistanceY", 0, 2, 0, 1, 5.0),
    Sketcher.Constraint("DistanceX", 1, 1, 1, 2, 6.5),
    Sketcher.Constraint("DistanceX", -1, 1, 0, 2, 120.2),
])
sketch12.setExpression("Constraints[20]", "Params.sketch12_height")
sketch12.setExpression("Constraints[21]", "Params.sketch12_width")
pocket6 = doc.addObject("PartDesign::Pocket", "Pocket005")
body.addObject(pocket6)
pocket6.Profile = sketch12
pocket6.Type = "ThroughAll"
pocket6.Midplane = True

sketch13 = doc.addObject("Sketcher::SketchObject", "Sketch012")
body.addObject(sketch13)
sketch13.AttachmentSupport = (doc.XZ_Plane, [""])
sketch13.MapMode = "FlatFace"
sketch13.addGeometry([
    Part.LineSegment(V(120.2, 0, 0), V(120.2, 5, 0)),
    Part.LineSegment(V(120.2, 5, 0), V(6.5, 5, 0)),
    Part.LineSegment(V(6.5, 5, 0), V(6.5, 0, 0)),
    Part.ArcOfCircle(Part.Circle(V(9, 0, 0), V(0, 0, 1), 2.5), math.radians(0), math.radians(180)),
    Part.LineSegment(V(11.5, 0, 0), V(50.5, 0, 0)),
    Part.ArcOfCircle(Part.Circle(V(53, 0, 0), V(0, 0, 1), 2.5), math.radians(0), math.radians(180)),
    Part.LineSegment(V(55.5, 0, 0), V(71.2, 0, 0)),
    Part.ArcOfCircle(Part.Circle(V(73.7, 0, 0), V(0, 0, 1), 2.5), math.radians(0), math.radians(180)),
    Part.LineSegment(V(76.2, 0, 0), V(115.2, 0, 0)),
    Part.ArcOfCircle(Part.Circle(V(117.7, 0, 0), V(0, 0, 1), 2.5), math.radians(0), math.radians(180)),
], False)
sketch13.addConstraint([
    Sketcher.Constraint("Coincident", 0, 2, 1, 1),
    Sketcher.Constraint("Coincident", 1, 2, 2, 1),
    Sketcher.Constraint("Tangent", 2, 2, 3, 2),
    Sketcher.Constraint("Coincident", 3, 1, 4, 1),
    Sketcher.Constraint("Coincident", 4, 2, 5, 2),
    Sketcher.Constraint("Coincident", 5, 1, 6, 1),
    Sketcher.Constraint("Coincident", 6, 2, 7, 2),
    Sketcher.Constraint("Coincident", 7, 1, 8, 1),
    Sketcher.Constraint("Coincident", 8, 2, 9, 2),
    Sketcher.Constraint("Tangent", 9, 1, 0, 1),
    Sketcher.Constraint("Vertical", 0),
    Sketcher.Constraint("Horizontal", 1),
    Sketcher.Constraint("Vertical", 2),
    Sketcher.Constraint("Horizontal", 4),
    Sketcher.Constraint("Horizontal", 6),
    Sketcher.Constraint("Horizontal", 8),
    Sketcher.Constraint("Equal", 3, 5),
    Sketcher.Constraint("Equal", 5, 7),
    Sketcher.Constraint("Equal", 7, 9),
    Sketcher.Constraint("PointOnObject", 3, 3, -1),
    Sketcher.Constraint("PointOnObject", 5, 3, -1),
    Sketcher.Constraint("PointOnObject", 7, 3, -1),
    Sketcher.Constraint("PointOnObject", 9, 3, -1),
    Sketcher.Constraint("PointOnObject", 3, 1, -1),
    Sketcher.Constraint("PointOnObject", 5, 1, -1),
    Sketcher.Constraint("PointOnObject", 7, 1, -1),
    Sketcher.Constraint("Equal", 4, 8),
    Sketcher.Constraint("Radius", 3, 2.5),
    Sketcher.Constraint("DistanceX", 4, 1, 4, 2, 39.0),
    Sketcher.Constraint("DistanceY", 0, 1, 0, 2, 5.0),
    Sketcher.Constraint("DistanceX", 1, 2, 1, 1, 113.7),
    Sketcher.Constraint("DistanceX", -1, 1, 3, 3, 9.0),
])
sketch13.setExpression("Constraints[27]", "Params.sketch13_radius")
sketch13.setExpression("Constraints[28]", "Params.sketch13_width")
sketch13.setExpression("Constraints[29]", "Params.sketch13_height")
sketch13.setExpression("Constraints[30]", "Params.sketch13_width2")
pad3 = doc.addObject("PartDesign::Pad", "Pad002")
body.addObject(pad3)
pad3.Profile = sketch13
pad3.setExpression("Length", "Params.pad3_length")

doc.recompute()
